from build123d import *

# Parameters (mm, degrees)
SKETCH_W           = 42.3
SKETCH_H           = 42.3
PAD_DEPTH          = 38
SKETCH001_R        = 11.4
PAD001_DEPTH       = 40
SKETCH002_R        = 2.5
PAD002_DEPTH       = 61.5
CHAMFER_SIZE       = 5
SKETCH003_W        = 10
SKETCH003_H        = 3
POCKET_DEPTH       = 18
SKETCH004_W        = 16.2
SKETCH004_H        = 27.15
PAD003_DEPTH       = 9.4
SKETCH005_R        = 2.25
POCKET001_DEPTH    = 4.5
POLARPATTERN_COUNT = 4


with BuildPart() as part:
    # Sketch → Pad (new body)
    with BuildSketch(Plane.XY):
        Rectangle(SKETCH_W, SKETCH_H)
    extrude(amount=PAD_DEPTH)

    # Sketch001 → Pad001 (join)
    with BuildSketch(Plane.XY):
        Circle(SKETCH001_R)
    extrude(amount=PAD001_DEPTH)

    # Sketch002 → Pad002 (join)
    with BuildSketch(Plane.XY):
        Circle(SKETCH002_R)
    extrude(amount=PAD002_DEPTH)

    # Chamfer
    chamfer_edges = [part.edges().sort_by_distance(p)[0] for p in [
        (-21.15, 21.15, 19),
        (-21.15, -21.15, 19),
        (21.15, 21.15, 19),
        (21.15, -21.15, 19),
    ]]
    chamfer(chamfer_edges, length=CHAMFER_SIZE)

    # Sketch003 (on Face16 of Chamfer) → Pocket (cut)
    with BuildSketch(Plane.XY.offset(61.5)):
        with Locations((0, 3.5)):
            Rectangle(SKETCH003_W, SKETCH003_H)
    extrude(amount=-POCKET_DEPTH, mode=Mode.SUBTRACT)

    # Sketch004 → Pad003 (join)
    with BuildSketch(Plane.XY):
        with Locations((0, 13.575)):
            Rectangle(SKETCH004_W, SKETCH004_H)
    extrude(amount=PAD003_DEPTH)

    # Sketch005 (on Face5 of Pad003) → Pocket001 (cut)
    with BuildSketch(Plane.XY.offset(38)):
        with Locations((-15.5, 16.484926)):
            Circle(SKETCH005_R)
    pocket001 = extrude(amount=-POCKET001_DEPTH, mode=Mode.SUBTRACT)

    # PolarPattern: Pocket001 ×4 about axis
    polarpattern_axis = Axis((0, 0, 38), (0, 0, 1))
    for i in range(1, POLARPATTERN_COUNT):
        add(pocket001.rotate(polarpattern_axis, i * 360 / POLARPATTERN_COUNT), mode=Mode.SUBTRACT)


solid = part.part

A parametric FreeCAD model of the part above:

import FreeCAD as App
import Part
import Sketcher


def edges_at(feature, points):
    """Names of the edges that pass closest to the given points."""
    edges = feature.Shape.Edges
    near = lambda p: min(range(len(edges)), key=lambda i: edges[i].distToShape(Part.Vertex(*p))[0])
    return sorted({f"Edge{near(p) + 1}" for p in points})


def add_polygon(sketch, points):
    """Adds a closed chain of lines whose ends are joined by coincident constraints."""
    first, n = sketch.GeometryCount, len(points)
    for a, b in zip(points, points[1:] + points[:1]):
        sketch.addGeometry(Part.LineSegment(App.Vector(*a, 0), App.Vector(*b, 0)), False)
    for i in range(n):
        sketch.addConstraint(Sketcher.Constraint("Coincident", first + i, 2, first + (i + 1) % n, 1))

doc = App.newDocument("Part")
body = doc.addObject("PartDesign::Body", "Body")

# Sketch on XY plane
sketch1 = doc.addObject("Sketcher::SketchObject", "Sketch")
body.addObject(sketch1)
sketch1.AttachmentSupport = (doc.XY_Plane, [""])
sketch1.MapMode = "FlatFace"
add_polygon(sketch1, [(-21, 21), (-21, -21), (21, -21), (21, 21)])  # lines 0-3
sketch1.addConstraint([
    Sketcher.Constraint("Vertical", 0),
    Sketcher.Constraint("Horizontal", 1),
    Sketcher.Constraint("Vertical", 2),
    Sketcher.Constraint("Horizontal", 3),
    Sketcher.Constraint("Symmetric", 0, 2, 2, 2, -1, 1),
    Sketcher.Constraint("Equal", 3, 0),
    Sketcher.Constraint("DistanceX", 1, 1, 1, 2, 42.3),
])
pad1 = doc.addObject("PartDesign::Pad", "Pad")
body.addObject(pad1)
pad1.Profile = sketch1
pad1.Length = 38

# Sketch on XY plane
sketch2 = doc.addObject("Sketcher::SketchObject", "Sketch001")
body.addObject(sketch2)
sketch2.AttachmentSupport = (doc.XY_Plane, [""])
sketch2.MapMode = "FlatFace"
sketch2.addGeometry(Part.Circle(App.Vector(0, 0, 0), App.Vector(0, 0, 1), 11), False)
sketch2.addConstraint([
    Sketcher.Constraint("Coincident", 0, 3, -1, 1),
    Sketcher.Constraint("Diameter", 0, 22.8),
])
pad2 = doc.addObject("PartDesign::Pad", "Pad001")
body.addObject(pad2)
pad2.Profile = sketch2
pad2.Length = 40

# Sketch on XY plane
sketch3 = doc.addObject("Sketcher::SketchObject", "Sketch002")
body.addObject(sketch3)
sketch3.AttachmentSupport = (doc.XY_Plane, [""])
sketch3.MapMode = "FlatFace"
sketch3.addGeometry(Part.Circle(App.Vector(0, 0, 0), App.Vector(0, 0, 1), 2.5), False)
sketch3.addConstraint([
    Sketcher.Constraint("Coincident", 0, 3, -1, 1),
    Sketcher.Constraint("Diameter", 0, 5.0),
])
pad3 = doc.addObject("PartDesign::Pad", "Pad002")
body.addObject(pad3)
pad3.Profile = sketch3
pad3.Length = 61.5
doc.recompute()

chamfer = doc.addObject("PartDesign::Chamfer", "Chamfer")
body.addObject(chamfer)
chamfer.Base = (pad3, edges_at(pad3, [
    (-21.15, 21.15, 19),
    (-21.15, -21.15, 19),
    (21.15, 21.15, 19),
    (21.15, -21.15, 19),
]))
chamfer.Size = 5

# Sketch on XY plane
sketch4 = doc.addObject("Sketcher::SketchObject", "Sketch003")
body.addObject(sketch4)
sketch4.AttachmentSupport = (doc.XY_Plane, [""])
sketch4.MapMode = "FlatFace"
sketch4.AttachmentOffset = App.Placement(App.Vector(0, 0, 61.5), App.Rotation())
add_polygon(sketch4, [(-5, 5), (-5, 2), (5, 2), (5, 5)])  # lines 0-3
sketch4.addConstraint([
    Sketcher.Constraint("Vertical", 0),
    Sketcher.Constraint("Horizontal", 1),
    Sketcher.Constraint("Vertical", 2),
    Sketcher.Constraint("Horizontal", 3),
    Sketcher.Constraint("DistanceX", 1, 1, 1, 2, 10.0),
    Sketcher.Constraint("DistanceY", 0, 2, 0, 1, 3.0),
    Sketcher.Constraint("DistanceX", 0, 2, -1, 1, 5.0),
    Sketcher.Constraint("DistanceY", -1, 1, 0, 2, 2.0),
])
pocket1 = doc.addObject("PartDesign::Pocket", "Pocket")
body.addObject(pocket1)
pocket1.Profile = sketch4
pocket1.Length = 18

# Sketch on XY plane
sketch5 = doc.addObject("Sketcher::SketchObject", "Sketch004")
body.addObject(sketch5)
sketch5.AttachmentSupport = (doc.XY_Plane, [""])
sketch5.MapMode = "FlatFace"
add_polygon(sketch5, [(-8, 27), (-8, 0), (8, 0), (8, 27)])  # lines 0-3
sketch5.addConstraint([
    Sketcher.Constraint("Vertical", 0),
    Sketcher.Constraint("Horizontal", 1),
    Sketcher.Constraint("Vertical", 2),
    Sketcher.Constraint("Horizontal", 3),
    Sketcher.Constraint("Symmetric", 0, 2, 1, 2, -1, 1),
    Sketcher.Constraint("DistanceX", 1, 1, 1, 2, 16.2),
    Sketcher.Constraint("DistanceY", 0, 2, 0, 1, 27.15),
])
pad4 = doc.addObject("PartDesign::Pad", "Pad003")
body.addObject(pad4)
pad4.Profile = sketch5
pad4.Length = 9.4

# Sketch on XY plane
sketch6 = doc.addObject("Sketcher::SketchObject", "Sketch005")
body.addObject(sketch6)
sketch6.AttachmentSupport = (doc.XY_Plane, [""])
sketch6.MapMode = "FlatFace"
sketch6.AttachmentOffset = App.Placement(App.Vector(0, 0, 38), App.Rotation())
sketch6.addGeometry(Part.Circle(App.Vector(-15.5, 16.5, 0), App.Vector(0, 0, 1), 2.2), False)
sketch6.addConstraint([
    Sketcher.Constraint("Diameter", 0, 4.5),
    Sketcher.Constraint("DistanceX", 0, 3, -1, 1, 15.5),
    Sketcher.Constraint("DistanceY", -1, 1, 0, 3, 16.484926),
])
pocket2 = doc.addObject("PartDesign::Pocket", "Pocket001")
body.addObject(pocket2)
pocket2.Profile = sketch6
pocket2.Length = 4.5
doc.recompute()

polarpattern = doc.addObject("PartDesign::PolarPattern", "PolarPattern")
body.addObject(polarpattern)
polarpattern.Originals = [pocket2]
polarpattern.Axis = (doc.Z_Axis, [""])
polarpattern.Angle = 360
polarpattern.Occurrences = 4
body.Tip = polarpattern

doc.recompute()
